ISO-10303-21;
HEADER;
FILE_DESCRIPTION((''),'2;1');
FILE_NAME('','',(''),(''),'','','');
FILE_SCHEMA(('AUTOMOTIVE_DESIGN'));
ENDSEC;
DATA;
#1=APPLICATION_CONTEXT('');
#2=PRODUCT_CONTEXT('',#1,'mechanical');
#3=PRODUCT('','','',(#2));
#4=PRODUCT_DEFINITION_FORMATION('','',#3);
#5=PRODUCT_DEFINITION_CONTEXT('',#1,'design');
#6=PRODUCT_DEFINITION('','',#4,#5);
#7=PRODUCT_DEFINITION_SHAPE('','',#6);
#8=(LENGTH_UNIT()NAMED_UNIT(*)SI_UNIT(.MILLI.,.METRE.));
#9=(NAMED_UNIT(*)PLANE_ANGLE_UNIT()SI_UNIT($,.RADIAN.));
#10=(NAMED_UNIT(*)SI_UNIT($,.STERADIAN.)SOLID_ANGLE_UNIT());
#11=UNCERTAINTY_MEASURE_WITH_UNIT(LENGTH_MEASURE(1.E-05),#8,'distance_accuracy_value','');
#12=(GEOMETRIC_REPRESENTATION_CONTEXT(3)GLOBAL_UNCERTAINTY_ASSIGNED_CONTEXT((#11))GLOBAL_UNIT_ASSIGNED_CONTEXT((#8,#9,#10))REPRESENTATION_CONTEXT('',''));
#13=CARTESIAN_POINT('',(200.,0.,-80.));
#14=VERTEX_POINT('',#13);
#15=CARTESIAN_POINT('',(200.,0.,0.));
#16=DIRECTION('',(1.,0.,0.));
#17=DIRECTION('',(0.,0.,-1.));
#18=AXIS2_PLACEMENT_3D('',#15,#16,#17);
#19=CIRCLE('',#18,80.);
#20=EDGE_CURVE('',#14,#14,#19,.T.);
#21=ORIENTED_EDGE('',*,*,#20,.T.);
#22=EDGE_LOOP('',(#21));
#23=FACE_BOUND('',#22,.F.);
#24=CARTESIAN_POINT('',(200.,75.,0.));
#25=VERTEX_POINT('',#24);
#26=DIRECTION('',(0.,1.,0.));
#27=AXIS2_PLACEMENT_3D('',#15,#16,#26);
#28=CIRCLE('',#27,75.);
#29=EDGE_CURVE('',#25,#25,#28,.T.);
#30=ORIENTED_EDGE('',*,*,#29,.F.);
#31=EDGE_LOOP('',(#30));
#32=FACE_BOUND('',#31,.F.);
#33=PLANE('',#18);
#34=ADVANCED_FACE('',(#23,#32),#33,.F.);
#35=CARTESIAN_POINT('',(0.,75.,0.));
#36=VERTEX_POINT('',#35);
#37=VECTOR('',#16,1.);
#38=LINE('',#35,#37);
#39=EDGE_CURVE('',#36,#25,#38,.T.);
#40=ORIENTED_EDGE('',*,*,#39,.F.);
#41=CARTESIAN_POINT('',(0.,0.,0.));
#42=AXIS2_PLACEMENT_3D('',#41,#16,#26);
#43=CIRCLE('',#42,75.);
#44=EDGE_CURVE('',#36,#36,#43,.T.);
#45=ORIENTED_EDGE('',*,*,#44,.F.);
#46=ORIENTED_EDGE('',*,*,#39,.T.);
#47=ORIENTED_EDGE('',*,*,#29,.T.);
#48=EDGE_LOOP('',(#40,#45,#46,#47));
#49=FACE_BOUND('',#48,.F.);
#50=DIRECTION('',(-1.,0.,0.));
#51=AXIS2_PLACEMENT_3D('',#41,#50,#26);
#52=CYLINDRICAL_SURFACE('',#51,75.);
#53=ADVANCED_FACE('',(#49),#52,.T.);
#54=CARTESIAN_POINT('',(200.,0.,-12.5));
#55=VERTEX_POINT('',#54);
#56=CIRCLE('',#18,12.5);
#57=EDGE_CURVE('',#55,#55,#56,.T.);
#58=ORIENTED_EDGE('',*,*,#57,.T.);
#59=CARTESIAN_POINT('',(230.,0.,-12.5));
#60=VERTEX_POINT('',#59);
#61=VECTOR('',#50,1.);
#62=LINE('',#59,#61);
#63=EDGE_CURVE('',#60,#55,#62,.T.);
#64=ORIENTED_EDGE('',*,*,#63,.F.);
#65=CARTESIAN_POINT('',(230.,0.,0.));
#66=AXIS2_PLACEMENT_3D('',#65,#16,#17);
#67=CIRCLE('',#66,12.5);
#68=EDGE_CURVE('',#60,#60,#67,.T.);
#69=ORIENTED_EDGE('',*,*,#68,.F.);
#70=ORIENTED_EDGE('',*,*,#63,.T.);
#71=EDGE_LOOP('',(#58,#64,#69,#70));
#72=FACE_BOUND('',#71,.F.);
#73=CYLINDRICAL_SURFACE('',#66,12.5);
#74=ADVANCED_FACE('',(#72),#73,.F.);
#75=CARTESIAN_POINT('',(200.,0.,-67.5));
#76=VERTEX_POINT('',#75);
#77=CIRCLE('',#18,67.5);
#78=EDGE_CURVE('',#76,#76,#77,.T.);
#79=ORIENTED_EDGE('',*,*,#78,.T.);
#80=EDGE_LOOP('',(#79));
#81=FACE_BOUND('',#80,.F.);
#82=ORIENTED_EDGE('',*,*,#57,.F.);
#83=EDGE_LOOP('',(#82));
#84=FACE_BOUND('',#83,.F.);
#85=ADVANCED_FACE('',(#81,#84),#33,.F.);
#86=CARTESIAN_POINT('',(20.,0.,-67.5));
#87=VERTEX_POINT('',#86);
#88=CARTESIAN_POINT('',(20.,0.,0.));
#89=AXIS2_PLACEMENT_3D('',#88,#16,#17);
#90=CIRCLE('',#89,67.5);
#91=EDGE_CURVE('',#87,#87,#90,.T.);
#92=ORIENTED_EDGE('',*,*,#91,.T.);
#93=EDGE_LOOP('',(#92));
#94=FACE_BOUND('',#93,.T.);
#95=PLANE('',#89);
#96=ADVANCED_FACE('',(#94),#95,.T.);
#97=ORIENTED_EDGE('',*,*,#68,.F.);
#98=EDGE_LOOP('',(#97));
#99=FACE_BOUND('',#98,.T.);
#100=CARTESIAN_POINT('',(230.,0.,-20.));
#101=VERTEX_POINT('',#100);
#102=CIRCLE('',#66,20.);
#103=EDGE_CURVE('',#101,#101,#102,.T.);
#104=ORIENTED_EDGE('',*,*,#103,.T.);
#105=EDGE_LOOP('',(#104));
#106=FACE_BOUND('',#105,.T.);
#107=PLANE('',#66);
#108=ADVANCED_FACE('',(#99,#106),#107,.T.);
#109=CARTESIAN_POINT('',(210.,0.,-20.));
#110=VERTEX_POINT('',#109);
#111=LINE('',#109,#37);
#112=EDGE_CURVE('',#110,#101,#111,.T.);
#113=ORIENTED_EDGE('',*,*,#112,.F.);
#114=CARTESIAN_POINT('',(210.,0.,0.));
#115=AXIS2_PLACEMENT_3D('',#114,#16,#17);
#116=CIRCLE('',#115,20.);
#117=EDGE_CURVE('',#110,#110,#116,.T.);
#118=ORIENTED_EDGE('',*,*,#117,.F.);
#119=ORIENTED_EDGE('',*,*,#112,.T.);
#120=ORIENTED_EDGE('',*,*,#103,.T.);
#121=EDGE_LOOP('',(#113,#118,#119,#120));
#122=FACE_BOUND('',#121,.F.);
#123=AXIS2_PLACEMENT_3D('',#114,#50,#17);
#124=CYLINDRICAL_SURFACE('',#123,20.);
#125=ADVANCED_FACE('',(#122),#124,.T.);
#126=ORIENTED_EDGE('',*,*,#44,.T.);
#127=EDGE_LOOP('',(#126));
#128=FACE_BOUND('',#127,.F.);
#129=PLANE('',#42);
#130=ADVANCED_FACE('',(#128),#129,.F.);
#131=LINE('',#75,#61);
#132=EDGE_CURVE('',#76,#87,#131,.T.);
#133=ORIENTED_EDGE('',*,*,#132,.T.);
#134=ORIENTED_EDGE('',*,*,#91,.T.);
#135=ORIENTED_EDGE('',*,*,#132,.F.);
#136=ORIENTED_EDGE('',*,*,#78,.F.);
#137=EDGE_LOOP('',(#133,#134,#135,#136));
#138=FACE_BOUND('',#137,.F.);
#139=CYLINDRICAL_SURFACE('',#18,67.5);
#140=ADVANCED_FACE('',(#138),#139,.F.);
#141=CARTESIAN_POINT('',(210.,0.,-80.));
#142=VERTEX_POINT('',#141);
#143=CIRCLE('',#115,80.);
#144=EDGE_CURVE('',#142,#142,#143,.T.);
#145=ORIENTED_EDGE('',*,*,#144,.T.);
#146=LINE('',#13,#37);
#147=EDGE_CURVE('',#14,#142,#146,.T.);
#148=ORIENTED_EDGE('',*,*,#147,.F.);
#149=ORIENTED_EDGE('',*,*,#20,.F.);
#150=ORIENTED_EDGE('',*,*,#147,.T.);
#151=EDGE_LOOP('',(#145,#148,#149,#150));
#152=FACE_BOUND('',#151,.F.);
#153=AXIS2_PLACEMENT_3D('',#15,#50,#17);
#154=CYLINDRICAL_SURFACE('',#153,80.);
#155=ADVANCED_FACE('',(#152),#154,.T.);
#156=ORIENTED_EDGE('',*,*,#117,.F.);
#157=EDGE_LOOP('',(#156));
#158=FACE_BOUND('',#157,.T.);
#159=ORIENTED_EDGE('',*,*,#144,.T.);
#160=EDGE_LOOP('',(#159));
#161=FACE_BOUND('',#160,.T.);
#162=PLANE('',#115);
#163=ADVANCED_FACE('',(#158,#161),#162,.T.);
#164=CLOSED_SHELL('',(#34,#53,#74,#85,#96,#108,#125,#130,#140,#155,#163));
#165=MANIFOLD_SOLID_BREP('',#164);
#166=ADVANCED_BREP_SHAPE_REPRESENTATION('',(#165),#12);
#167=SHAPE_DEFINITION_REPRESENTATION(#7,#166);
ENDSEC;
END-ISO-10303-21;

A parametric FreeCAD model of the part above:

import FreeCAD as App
import Part
import Sketcher

doc = App.newDocument("Part")
body = doc.addObject("PartDesign::Body", "Body")

sketch1 = body.newObject("Sketcher::SketchObject", "Sketch")
sketch1.AttachmentSupport = (doc.getObject("YZ_Plane"), [""])
sketch1.MapMode = "FlatFace"
sketch1.addGeometry(Part.Circle(App.Vector(0, 0, 0), App.Vector(0, 0, 1), 75), False)
sketch1.addConstraint(Sketcher.Constraint("Coincident", 0, 3, -1, 1))
sketch1.addConstraint(Sketcher.Constraint("Diameter", 0, 150.0))
pad1 = body.newObject("PartDesign::Pad", "Pad")
pad1.Profile = sketch1
pad1.Length = 200

sketch2 = body.newObject("Sketcher::SketchObject", "Sketch001")
sketch2.AttachmentSupport = (doc.getObject("YZ_Plane"), [""])
sketch2.MapMode = "FlatFace"
sketch2.AttachmentOffset = App.Placement(App.Vector(0, 0, 200), App.Rotation())
sketch2.addGeometry(Part.Circle(App.Vector(0, 0, 0), App.Vector(0, 0, 1), 67.5), False)
sketch2.addConstraint(Sketcher.Constraint("Coincident", 0, 3, -1, 1))
sketch2.addConstraint(Sketcher.Constraint("Diameter", 0, 135.0))
pocket1 = body.newObject("PartDesign::Pocket", "Pocket")
pocket1.Profile = sketch2
pocket1.Length = 180

sketch3 = body.newObject("Sketcher::SketchObject", "Sketch002")
sketch3.AttachmentSupport = (doc.getObject("YZ_Plane"), [""])
sketch3.MapMode = "FlatFace"
sketch3.AttachmentOffset = App.Placement(App.Vector(0, 0, 200), App.Rotation())
sketch3.addGeometry(Part.Circle(App.Vector(0, 0, 0), App.Vector(0, 0, 1), 80), False)
sketch3.addConstraint(Sketcher.Constraint("Coincident", 0, 3, -1, 1))
sketch3.addConstraint(Sketcher.Constraint("Diameter", 0, 160.0))
pad2 = body.newObject("PartDesign::Pad", "Pad001")
pad2.Profile = sketch3
pad2.Length = 10

sketch4 = body.newObject("Sketcher::SketchObject", "Sketch003")
sketch4.AttachmentSupport = (doc.getObject("YZ_Plane"), [""])
sketch4.MapMode = "FlatFace"
sketch4.AttachmentOffset = App.Placement(App.Vector(0, 0, 210), App.Rotation())
sketch4.addGeometry(Part.Circle(App.Vector(0, 0, 0), App.Vector(0, 0, 1), 20), False)
sketch4.addConstraint(Sketcher.Constraint("Coincident", 0, 3, -1, 1))
sketch4.addConstraint(Sketcher.Constraint("Diameter", 0, 40.0))
pad3 = body.newObject("PartDesign::Pad", "Pad002")
pad3.Profile = sketch4
pad3.Length = 20

sketch5 = body.newObject("Sketcher::SketchObject", "Sketch004")
sketch5.AttachmentSupport = (doc.getObject("YZ_Plane"), [""])
sketch5.MapMode = "FlatFace"
sketch5.AttachmentOffset = App.Placement(App.Vector(0, 0, 230), App.Rotation())
sketch5.addGeometry(Part.Circle(App.Vector(0, 0, 0), App.Vector(0, 0, 1), 12.5), False)
sketch5.addConstraint(Sketcher.Constraint("Coincident", 0, 3, -1, 1))
sketch5.addConstraint(Sketcher.Constraint("Diameter", 0, 25.0))
pocket2 = body.newObject("PartDesign::Pocket", "Pocket001")
pocket2.Profile = sketch5
pocket2.Length = 40

doc.recompute()
